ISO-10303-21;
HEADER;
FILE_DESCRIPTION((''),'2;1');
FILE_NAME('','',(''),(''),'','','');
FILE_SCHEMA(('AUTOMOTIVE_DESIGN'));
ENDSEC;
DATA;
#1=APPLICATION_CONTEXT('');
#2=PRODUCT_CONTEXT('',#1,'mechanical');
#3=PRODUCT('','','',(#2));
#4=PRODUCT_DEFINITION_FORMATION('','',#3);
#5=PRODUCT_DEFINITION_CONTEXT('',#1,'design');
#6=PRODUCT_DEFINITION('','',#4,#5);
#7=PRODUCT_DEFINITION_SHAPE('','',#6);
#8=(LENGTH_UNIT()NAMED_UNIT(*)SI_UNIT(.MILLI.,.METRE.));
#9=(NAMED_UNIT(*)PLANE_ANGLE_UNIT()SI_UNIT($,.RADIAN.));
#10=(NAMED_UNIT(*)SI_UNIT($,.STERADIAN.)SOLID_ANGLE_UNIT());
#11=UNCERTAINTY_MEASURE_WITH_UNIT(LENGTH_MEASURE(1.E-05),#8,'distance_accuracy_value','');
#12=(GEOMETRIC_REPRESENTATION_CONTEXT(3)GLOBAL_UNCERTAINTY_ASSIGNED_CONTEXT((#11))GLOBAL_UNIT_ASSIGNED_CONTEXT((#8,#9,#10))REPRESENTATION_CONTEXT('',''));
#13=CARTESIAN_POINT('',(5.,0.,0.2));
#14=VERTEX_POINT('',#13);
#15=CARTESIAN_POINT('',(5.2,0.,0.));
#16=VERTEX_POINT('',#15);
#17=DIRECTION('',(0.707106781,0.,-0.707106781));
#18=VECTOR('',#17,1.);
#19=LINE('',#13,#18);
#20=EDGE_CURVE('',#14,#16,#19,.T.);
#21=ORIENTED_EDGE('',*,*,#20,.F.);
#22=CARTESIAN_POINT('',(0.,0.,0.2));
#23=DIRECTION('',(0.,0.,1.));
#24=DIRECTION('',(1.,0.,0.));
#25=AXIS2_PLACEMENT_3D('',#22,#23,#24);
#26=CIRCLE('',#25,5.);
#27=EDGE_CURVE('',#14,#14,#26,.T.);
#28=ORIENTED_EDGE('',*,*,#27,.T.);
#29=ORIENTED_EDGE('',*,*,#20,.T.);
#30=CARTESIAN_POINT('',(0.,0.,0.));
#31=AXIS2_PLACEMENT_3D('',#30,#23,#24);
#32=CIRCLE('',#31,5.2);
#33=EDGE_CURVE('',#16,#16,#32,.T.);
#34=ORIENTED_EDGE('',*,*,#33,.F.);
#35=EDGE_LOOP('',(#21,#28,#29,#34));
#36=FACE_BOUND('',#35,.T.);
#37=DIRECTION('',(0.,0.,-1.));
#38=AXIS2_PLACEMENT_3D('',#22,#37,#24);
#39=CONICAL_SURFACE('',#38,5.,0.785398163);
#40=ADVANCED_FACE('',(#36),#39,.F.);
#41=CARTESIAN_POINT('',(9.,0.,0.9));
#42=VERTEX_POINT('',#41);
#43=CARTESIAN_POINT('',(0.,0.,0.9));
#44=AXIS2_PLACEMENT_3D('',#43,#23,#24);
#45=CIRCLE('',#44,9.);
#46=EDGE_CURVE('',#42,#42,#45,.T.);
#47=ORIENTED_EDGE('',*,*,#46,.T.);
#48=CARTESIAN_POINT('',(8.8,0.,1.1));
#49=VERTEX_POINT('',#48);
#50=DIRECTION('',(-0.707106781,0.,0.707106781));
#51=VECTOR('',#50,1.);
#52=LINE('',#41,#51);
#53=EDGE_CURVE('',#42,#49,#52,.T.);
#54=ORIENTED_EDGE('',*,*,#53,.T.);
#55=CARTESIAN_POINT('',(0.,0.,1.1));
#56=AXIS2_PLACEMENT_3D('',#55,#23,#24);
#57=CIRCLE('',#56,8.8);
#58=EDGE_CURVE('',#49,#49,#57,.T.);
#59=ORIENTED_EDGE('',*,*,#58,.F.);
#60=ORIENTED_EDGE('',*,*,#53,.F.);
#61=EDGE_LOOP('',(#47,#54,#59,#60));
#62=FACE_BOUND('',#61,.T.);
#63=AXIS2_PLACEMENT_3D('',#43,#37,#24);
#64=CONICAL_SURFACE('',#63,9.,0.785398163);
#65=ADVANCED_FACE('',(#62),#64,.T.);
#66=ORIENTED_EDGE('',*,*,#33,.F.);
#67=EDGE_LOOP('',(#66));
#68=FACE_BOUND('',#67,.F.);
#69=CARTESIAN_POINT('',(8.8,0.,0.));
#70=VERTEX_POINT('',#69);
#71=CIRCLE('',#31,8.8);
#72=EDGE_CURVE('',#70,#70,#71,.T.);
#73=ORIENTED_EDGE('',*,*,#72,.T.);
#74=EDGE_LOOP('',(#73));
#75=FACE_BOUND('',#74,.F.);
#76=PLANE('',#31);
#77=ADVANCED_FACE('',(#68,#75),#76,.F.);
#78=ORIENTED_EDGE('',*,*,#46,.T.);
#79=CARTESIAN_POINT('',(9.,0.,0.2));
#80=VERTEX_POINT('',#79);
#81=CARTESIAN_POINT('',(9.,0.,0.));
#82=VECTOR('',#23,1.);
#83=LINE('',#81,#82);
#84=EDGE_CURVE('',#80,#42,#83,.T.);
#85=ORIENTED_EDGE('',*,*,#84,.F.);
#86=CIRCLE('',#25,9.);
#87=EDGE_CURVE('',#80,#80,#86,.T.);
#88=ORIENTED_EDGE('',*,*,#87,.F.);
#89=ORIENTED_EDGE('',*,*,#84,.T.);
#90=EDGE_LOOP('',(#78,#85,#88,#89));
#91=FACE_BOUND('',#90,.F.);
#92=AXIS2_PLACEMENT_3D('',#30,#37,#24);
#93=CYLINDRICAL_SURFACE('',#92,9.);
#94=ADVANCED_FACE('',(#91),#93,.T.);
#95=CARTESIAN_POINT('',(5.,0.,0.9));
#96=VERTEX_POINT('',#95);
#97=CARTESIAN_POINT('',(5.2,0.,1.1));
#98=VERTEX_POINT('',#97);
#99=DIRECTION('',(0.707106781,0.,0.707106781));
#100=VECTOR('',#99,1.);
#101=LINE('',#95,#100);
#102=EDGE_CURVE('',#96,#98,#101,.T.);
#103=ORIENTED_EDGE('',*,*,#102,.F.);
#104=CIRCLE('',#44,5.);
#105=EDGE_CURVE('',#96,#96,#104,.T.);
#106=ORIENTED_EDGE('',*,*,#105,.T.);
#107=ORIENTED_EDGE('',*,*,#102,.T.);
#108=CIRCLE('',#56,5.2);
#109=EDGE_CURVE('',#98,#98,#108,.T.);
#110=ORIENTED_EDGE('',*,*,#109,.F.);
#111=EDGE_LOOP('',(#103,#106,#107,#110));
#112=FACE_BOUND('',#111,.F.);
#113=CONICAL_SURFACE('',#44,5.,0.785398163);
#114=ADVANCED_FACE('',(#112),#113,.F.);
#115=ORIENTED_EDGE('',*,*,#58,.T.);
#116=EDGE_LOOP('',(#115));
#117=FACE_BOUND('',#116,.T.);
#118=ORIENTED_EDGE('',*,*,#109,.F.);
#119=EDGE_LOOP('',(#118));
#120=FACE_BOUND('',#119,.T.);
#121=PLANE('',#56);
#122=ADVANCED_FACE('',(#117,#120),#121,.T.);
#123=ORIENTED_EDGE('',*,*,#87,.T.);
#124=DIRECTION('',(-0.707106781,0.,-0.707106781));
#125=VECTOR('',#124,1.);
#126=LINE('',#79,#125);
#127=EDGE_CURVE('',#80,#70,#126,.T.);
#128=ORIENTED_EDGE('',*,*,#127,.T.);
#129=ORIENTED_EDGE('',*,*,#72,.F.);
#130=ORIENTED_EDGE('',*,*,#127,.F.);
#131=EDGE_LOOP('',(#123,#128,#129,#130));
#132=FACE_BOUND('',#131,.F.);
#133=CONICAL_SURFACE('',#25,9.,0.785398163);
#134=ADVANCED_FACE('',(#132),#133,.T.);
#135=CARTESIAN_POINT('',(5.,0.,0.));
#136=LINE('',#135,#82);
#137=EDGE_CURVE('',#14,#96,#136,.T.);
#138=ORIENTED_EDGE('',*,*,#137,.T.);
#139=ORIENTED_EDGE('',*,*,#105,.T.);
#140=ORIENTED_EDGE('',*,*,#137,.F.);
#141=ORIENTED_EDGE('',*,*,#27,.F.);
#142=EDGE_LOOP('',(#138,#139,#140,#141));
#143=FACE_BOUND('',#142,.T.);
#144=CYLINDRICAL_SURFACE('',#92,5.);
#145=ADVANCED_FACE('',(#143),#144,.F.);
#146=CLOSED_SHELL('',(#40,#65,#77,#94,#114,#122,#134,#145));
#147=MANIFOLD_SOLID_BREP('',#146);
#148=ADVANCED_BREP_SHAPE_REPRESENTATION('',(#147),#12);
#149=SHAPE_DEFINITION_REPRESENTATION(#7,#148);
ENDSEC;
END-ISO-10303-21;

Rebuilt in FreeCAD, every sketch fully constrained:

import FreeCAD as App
import Part
import Sketcher

V = App.Vector


def edges_at(feature, points):
    """Names of the edges that pass closest to the given points."""
    edges = feature.Shape.Edges
    near = lambda p: min(range(len(edges)), key=lambda i: edges[i].distToShape(Part.Vertex(*p))[0])
    return sorted({f"Edge{near(p) + 1}" for p in points})

doc = App.newDocument("Part")
body = doc.addObject("PartDesign::Body", "Body")

sketch1 = body.newObject("Sketcher::SketchObject", "Sketch")
sketch1.AttachmentSupport = (doc.getObject("XY_Plane"), [""])
sketch1.MapMode = "FlatFace"
sketch1.addGeometry(Part.Circle(V(0, 0, 0), V(0, 0, 1), 9), False)
sketch1.addGeometry(Part.Circle(V(0, 0, 0), V(0, 0, 1), 5), False)
sketch1.addConstraint(Sketcher.Constraint("Coincident", 0, 3, -1, 1))
sketch1.addConstraint(Sketcher.Constraint("Coincident", 1, 3, -1, 1))
sketch1.addConstraint(Sketcher.Constraint("Diameter", 0, 18.0))
sketch1.addConstraint(Sketcher.Constraint("Diameter", 1, 10.0))
pad1 = body.newObject("PartDesign::Pad", "Pad")
pad1.Profile = sketch1
pad1.Length = 1.1
doc.recompute()

chamfer = body.newObject("PartDesign::Chamfer", "Chamfer")
chamfer.Base = (pad1, edges_at(pad1, [
    (-9, 0, 1.1),
    (-5, 0, 1.1),
    (-5, 0, 0),
    (-9, 0, 0),
]))
chamfer.Size = 0.2

doc.recompute()
